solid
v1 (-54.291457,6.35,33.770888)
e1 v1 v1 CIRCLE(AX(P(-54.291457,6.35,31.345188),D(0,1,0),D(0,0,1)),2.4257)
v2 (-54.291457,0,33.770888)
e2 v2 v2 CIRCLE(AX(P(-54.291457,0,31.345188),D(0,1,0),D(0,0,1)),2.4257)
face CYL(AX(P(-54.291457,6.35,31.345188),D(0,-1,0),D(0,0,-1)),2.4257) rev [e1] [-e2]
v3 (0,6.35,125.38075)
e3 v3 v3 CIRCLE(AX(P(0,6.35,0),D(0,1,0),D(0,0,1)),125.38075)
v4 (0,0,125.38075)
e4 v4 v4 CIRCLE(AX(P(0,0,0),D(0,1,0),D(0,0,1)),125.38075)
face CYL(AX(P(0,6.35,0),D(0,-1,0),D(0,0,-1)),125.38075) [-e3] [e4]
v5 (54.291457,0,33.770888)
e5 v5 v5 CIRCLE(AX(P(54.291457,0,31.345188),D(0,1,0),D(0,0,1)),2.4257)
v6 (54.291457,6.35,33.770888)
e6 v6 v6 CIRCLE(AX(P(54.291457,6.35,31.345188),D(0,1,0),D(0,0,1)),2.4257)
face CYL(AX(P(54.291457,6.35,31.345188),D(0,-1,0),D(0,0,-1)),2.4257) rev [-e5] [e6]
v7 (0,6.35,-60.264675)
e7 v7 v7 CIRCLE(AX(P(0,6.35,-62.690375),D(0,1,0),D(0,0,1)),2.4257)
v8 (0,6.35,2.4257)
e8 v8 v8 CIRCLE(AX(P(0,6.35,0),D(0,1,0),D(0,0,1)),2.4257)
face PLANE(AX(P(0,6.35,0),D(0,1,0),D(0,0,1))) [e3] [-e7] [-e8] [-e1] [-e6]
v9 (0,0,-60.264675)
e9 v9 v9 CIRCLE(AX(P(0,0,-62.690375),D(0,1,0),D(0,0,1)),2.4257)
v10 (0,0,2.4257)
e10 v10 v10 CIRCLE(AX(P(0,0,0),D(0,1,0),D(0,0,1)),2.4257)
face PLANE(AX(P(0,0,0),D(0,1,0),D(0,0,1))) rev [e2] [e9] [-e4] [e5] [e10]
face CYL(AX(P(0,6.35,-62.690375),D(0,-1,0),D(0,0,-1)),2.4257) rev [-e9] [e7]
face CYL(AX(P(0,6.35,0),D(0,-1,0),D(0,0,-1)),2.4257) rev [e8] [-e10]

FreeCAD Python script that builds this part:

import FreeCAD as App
import Part
import Sketcher

V = App.Vector
Q = App.Units.Quantity

doc = App.newDocument("Part")
body = doc.addObject("PartDesign::Body", "Body")

# Sketch on XZ plane
sketch1 = body.newObject("Sketcher::SketchObject", "Sketch")
sketch1.AttachmentSupport = (doc.getObject("XZ_Plane"), [""])
sketch1.MapMode = "FlatFace"
sketch1.addGeometry(Part.Circle(V(0, 0, 0), V(0, 0, 1), 125.4), False)
sketch1.addGeometry(Part.Circle(V(0, -62.7, 0), V(0, 0, 1), 2.4), False)
sketch1.addGeometry(Part.Circle(V(-54.3, 31.3, 0), V(0, 0, 1), 2.4), False)
sketch1.addGeometry(Part.Circle(V(0, 0, 0), V(0, 0, 1), 2.4), False)
sketch1.addGeometry(Part.Circle(V(54.3, 31.3, 0), V(0, 0, 1), 2.4), False)
sketch1.addConstraint(Sketcher.Constraint("Coincident", 0, 3, -1, 1))
sketch1.addConstraint(Sketcher.Constraint("Coincident", 3, 3, -1, 1))
sketch1.addConstraint(Sketcher.Constraint("Equal", 1, 2))
sketch1.addConstraint(Sketcher.Constraint("Equal", 2, 3))
sketch1.addConstraint(Sketcher.Constraint("Equal", 3, 4))
sketch1.addConstraint(Sketcher.Constraint("Symmetric", 2, 3, 4, 3, -2))
sketch1.addConstraint(Sketcher.Constraint("PointOnObject", 1, 3, -2))
sketch1.addConstraint(Sketcher.Constraint("Diameter", 1, Q("0.191 in")))
sketch1.addConstraint(Sketcher.Constraint("Diameter", 0, Q("9.8725 in")))
sketch1.addConstraint(Sketcher.Constraint("DistanceY", 1, 3, -1, 1, 62.690375))
sketch1.addConstraint(Sketcher.Constraint("DistanceX", 2, 3, -1, 1, 54.291457))
sketch1.addConstraint(Sketcher.Constraint("DistanceY", -1, 1, 2, 3, 31.345188))
pad1 = body.newObject("PartDesign::Pad", "Pad")
pad1.Profile = sketch1
pad1.Length = Q("0.25 in")
pad1.Reversed = True

doc.recompute()
